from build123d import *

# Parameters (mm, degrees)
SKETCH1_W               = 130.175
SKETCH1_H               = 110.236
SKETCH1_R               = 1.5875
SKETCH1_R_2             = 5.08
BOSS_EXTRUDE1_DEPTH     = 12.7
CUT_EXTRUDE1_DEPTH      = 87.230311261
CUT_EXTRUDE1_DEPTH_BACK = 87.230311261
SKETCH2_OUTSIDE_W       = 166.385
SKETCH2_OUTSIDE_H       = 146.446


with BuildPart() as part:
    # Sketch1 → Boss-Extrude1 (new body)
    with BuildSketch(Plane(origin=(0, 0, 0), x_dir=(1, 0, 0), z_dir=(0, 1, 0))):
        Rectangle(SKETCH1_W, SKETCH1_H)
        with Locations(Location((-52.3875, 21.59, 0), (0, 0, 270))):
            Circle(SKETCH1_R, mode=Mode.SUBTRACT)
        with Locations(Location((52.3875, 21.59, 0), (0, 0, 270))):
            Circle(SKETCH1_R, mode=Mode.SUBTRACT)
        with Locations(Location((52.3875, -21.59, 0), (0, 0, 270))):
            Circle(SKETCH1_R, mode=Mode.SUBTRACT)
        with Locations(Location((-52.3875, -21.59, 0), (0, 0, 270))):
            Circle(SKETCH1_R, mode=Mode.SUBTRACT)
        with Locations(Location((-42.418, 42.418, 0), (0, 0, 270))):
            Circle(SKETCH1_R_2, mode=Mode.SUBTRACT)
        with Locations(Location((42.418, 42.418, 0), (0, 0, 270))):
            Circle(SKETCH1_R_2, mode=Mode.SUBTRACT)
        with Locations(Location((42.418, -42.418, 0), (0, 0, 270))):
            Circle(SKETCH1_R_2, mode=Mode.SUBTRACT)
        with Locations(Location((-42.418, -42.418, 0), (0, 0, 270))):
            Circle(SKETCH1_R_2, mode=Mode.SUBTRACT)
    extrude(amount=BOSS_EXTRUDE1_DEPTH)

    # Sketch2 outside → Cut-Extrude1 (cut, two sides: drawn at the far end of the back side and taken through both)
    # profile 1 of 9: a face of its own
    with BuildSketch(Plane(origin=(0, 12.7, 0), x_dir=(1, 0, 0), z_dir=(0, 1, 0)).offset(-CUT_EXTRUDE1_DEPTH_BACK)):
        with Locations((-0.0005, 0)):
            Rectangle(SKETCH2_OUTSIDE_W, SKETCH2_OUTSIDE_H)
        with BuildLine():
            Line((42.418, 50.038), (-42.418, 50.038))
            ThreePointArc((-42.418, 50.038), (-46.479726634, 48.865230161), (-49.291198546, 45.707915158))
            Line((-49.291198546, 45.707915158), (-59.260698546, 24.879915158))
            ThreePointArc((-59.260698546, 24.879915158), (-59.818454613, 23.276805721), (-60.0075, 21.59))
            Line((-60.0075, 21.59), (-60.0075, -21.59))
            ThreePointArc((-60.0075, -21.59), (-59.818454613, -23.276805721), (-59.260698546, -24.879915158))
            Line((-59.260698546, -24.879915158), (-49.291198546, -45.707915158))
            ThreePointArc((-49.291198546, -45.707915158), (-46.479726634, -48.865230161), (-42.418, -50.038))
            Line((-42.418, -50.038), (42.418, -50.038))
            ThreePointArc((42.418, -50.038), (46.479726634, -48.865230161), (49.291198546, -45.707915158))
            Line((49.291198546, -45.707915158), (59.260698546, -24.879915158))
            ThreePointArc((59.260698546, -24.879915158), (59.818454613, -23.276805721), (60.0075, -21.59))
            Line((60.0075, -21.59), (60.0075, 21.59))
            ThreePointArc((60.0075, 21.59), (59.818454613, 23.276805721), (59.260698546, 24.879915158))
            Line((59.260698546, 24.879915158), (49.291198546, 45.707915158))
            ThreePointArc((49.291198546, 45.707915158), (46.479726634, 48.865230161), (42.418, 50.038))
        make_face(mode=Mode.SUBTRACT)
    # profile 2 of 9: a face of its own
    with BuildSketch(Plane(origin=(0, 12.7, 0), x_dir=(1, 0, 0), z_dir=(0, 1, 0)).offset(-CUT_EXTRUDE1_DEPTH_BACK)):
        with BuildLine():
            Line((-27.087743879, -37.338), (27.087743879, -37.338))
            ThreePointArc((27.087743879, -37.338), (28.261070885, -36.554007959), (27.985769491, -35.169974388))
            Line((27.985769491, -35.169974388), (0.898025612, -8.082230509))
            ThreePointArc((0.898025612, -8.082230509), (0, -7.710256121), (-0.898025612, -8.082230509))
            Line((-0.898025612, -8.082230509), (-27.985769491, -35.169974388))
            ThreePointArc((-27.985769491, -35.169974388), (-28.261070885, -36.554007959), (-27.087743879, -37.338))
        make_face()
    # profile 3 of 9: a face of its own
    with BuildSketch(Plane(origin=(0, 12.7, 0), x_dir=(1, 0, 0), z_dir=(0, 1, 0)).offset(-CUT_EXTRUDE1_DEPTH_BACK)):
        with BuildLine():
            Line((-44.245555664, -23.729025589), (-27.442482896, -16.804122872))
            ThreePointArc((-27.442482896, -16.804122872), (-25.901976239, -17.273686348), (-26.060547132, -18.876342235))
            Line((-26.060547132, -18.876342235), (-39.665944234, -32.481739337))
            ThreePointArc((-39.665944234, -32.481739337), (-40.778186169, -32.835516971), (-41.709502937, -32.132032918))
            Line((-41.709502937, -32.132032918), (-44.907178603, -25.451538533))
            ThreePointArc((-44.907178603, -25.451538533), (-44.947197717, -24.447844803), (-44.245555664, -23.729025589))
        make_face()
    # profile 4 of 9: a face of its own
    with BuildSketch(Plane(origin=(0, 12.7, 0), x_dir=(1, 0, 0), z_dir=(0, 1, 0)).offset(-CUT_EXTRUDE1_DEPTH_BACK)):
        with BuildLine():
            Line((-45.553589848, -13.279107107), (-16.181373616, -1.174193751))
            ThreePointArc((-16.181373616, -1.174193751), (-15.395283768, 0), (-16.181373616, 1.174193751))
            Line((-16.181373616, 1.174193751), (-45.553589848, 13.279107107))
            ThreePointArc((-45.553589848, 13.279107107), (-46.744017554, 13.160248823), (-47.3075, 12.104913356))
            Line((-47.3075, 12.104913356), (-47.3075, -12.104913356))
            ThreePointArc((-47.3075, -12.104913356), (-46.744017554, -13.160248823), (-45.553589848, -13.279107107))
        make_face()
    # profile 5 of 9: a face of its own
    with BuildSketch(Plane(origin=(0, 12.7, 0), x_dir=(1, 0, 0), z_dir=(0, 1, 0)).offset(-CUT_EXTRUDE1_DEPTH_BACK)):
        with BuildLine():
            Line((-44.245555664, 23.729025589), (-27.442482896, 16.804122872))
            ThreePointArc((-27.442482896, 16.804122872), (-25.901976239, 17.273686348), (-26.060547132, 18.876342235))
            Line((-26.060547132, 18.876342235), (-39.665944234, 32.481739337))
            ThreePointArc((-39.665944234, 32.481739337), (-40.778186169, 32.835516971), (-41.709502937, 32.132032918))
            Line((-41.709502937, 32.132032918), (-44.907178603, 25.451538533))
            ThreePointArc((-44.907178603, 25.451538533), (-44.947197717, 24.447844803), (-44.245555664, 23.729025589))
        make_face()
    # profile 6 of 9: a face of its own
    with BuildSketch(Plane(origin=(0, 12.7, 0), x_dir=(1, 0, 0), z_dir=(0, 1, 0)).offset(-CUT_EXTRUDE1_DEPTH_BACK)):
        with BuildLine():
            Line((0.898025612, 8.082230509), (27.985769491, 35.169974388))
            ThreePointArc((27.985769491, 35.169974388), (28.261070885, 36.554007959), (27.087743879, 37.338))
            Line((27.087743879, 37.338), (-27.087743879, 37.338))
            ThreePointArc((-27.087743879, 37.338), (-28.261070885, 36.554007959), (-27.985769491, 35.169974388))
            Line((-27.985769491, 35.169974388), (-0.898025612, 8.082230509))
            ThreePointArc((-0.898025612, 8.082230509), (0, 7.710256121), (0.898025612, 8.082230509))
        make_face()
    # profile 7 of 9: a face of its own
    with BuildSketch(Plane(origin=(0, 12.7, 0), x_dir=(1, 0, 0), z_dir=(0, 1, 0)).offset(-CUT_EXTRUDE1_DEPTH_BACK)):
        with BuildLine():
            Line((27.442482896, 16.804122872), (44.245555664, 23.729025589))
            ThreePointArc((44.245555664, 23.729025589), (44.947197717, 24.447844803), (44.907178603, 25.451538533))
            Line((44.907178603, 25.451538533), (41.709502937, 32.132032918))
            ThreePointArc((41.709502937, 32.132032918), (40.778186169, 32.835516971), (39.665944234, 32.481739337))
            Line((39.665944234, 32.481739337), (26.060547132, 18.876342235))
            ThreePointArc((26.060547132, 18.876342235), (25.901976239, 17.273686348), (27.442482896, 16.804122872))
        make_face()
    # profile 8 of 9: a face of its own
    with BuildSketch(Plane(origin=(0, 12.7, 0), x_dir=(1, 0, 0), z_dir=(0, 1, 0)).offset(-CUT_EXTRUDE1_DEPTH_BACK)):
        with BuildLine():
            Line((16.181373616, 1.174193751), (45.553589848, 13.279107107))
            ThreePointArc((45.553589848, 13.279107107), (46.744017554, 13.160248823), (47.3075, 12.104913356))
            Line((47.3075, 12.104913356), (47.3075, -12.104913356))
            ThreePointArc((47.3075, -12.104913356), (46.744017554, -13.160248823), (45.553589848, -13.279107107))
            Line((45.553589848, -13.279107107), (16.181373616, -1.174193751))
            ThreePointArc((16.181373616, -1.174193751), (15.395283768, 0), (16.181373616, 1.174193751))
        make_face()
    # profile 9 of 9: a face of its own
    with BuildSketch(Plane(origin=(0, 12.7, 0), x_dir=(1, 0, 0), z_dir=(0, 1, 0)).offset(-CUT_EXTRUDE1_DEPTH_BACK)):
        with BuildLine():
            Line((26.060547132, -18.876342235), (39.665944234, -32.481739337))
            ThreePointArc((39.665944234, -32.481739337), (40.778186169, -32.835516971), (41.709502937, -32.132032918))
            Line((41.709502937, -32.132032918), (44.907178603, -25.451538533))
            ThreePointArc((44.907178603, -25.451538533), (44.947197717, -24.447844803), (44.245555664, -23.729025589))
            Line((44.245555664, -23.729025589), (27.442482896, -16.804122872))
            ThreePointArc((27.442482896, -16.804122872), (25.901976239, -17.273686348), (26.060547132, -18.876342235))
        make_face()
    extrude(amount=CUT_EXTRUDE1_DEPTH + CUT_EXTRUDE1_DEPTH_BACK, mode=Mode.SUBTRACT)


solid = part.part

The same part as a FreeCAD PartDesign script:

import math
import FreeCAD as App
import Part
import Sketcher
from FreeCAD import Vector
Q = App.Units.Quantity

doc = App.newDocument("Part")
body = doc.addObject("PartDesign::Body", "Body")

# Sketch on XZ plane
sketch1 = doc.addObject("Sketcher::SketchObject", "Sketch")
body.addObject(sketch1)
sketch1.AttachmentSupport = (doc.XZ_Plane, [""])
sketch1.MapMode = "FlatFace"
sketch1.addGeometry([
    Part.LineSegment(Vector(-65.1, -55.1, 0), Vector(-65.1, 55.1, 0)),  # 0
    Part.LineSegment(Vector(-65.1, 55.1, 0), Vector(65.1, 55.1, 0)),  # 1
    Part.LineSegment(Vector(65.1, 55.1, 0), Vector(65.1, -55.1, 0)),  # 2
    Part.LineSegment(Vector(65.1, -55.1, 0), Vector(-65.1, -55.1, 0)),  # 3
    Part.Circle(Vector(-42.4, 42.4, 0), Vector(0, 0, 1), 5.1),  # 4
    Part.Circle(Vector(-52.4, 21.6, 0), Vector(0, 0, 1), 1.6),  # 5
    Part.Circle(Vector(42.4, 42.4, 0), Vector(0, 0, 1), 5.1),  # 6
    Part.Circle(Vector(52.4, 21.6, 0), Vector(0, 0, 1), 1.6),  # 7
    Part.Circle(Vector(-52.4, -21.6, 0), Vector(0, 0, 1), 1.6),  # 8
    Part.Circle(Vector(-42.4, -42.4, 0), Vector(0, 0, 1), 5.1),  # 9
    Part.Circle(Vector(52.4, -21.6, 0), Vector(0, 0, 1), 1.6),  # 10
    Part.Circle(Vector(42.4, -42.4, 0), Vector(0, 0, 1), 5.1),  # 11
], False)
sketch1.addConstraint([
    Sketcher.Constraint("Coincident", 0, 2, 1, 1),
    Sketcher.Constraint("Coincident", 1, 2, 2, 1),
    Sketcher.Constraint("Coincident", 2, 2, 3, 1),
    Sketcher.Constraint("Coincident", 3, 2, 0, 1),
    Sketcher.Constraint("Vertical", 0),
    Sketcher.Constraint("Horizontal", 1),
    Sketcher.Constraint("Vertical", 2),
    Sketcher.Constraint("Horizontal", 3),
    Sketcher.Constraint("Equal", 4, 6),
    Sketcher.Constraint("Equal", 5, 7),
    Sketcher.Constraint("Equal", 7, 8),
    Sketcher.Constraint("Equal", 6, 9),
    Sketcher.Constraint("Equal", 8, 10),
    Sketcher.Constraint("Equal", 9, 11),
    Sketcher.Constraint("Symmetric", 7, 3, 8, 3, -1, 1),
    Sketcher.Constraint("Symmetric", 6, 3, 9, 3, -1, 1),
    Sketcher.Constraint("Symmetric", 5, 3, 10, 3, -1, 1),
    Sketcher.Constraint("Symmetric", 4, 3, 11, 3, -1, 1),
    Sketcher.Constraint("Symmetric", 0, 2, 2, 2, -1, 1),
    Sketcher.Constraint("Symmetric", 4, 3, 6, 3, -2),
    Sketcher.Constraint("Symmetric", 5, 3, 7, 3, -2),
    Sketcher.Constraint("Diameter", 4, Q("0.4 in")),
    Sketcher.Constraint("Diameter", 5, Q("0.125 in")),
    Sketcher.Constraint("DistanceY", 0, 1, 0, 2, Q("4.34 in")),
    Sketcher.Constraint("DistanceY", 8, 3, 5, 3, Q("1.7 in")),
    Sketcher.Constraint("DistanceY", 4, 3, 0, 2, Q("0.5 in")),
    Sketcher.Constraint("DistanceX", 0, 2, 5, 3, Q("0.5 in")),
    Sketcher.Constraint("DistanceX", 1, 1, 1, 2, Q("5.125 in")),
    Sketcher.Constraint("DistanceX", 4, 3, -1, 1, Q("1.67 in")),
])
pad1 = doc.addObject("PartDesign::Pad", "Pad")
body.addObject(pad1)
pad1.Profile = sketch1
pad1.Length = Q("0.5 in")
pad1.Reversed = True

# Sketch on XZ plane
sketch2 = doc.addObject("Sketcher::SketchObject", "Sketch001")
body.addObject(sketch2)
sketch2.AttachmentSupport = (doc.XZ_Plane, [""])
sketch2.MapMode = "FlatFace"
sketch2.AttachmentOffset = App.Placement(Vector(0, 0, -0.5 * 25.4), App.Rotation())
sketch2.addGeometry([
    Part.LineSegment(Vector(-83.2, -73.2, 0), Vector(-83.2, 73.2, 0)),  # 0
    Part.LineSegment(Vector(-83.2, 73.2, 0), Vector(83.2, 73.2, 0)),  # 1
    Part.LineSegment(Vector(83.2, 73.2, 0), Vector(83.2, -73.2, 0)),  # 2
    Part.LineSegment(Vector(83.2, -73.2, 0), Vector(-83.2, -73.2, 0)),  # 3
    Part.LineSegment(Vector(-42.4, -50, 0), Vector(42.4, -50, 0)),  # 4
    Part.ArcOfCircle(Part.Circle(Vector(42.4, -42.4, 0), Vector(0, 0, 1), 7.6), math.radians(-90), math.radians(-26)),  # 5
    Part.LineSegment(Vector(49.3, -45.7, 0), Vector(59.3, -24.9, 0)),  # 6
    Part.ArcOfCircle(Part.Circle(Vector(52.4, -21.6, 0), Vector(0, 0, 1), 7.6), math.radians(-26), math.radians(0)),  # 7
    Part.LineSegment(Vector(60, -21.6, 0), Vector(60, 21.6, 0)),  # 8
    Part.ArcOfCircle(Part.Circle(Vector(52.4, 21.6, 0), Vector(0, 0, 1), 7.6), math.radians(0), math.radians(26)),  # 9
    Part.LineSegment(Vector(59.3, 24.9, 0), Vector(49.3, 45.7, 0)),  # 10
    Part.ArcOfCircle(Part.Circle(Vector(42.4, 42.4, 0), Vector(0, 0, 1), 7.6), math.radians(26), math.radians(90)),  # 11
    Part.LineSegment(Vector(42.4, 50, 0), Vector(-42.4, 50, 0)),  # 12
    Part.ArcOfCircle(Part.Circle(Vector(-42.4, 42.4, 0), Vector(0, 0, 1), 7.6), math.radians(90), math.radians(154)),  # 13
    Part.LineSegment(Vector(-49.3, 45.7, 0), Vector(-59.3, 24.9, 0)),  # 14
    Part.ArcOfCircle(Part.Circle(Vector(-52.4, 21.6, 0), Vector(0, 0, 1), 7.6), math.radians(154), math.radians(180)),  # 15
    Part.LineSegment(Vector(-60, 21.6, 0), Vector(-60, -21.6, 0)),  # 16
    Part.ArcOfCircle(Part.Circle(Vector(-52.4, -21.6, 0), Vector(0, 0, 1), 7.6), math.radians(180), math.radians(206)),  # 17
    Part.LineSegment(Vector(-59.3, -24.9, 0), Vector(-49.3, -45.7, 0)),  # 18
    Part.ArcOfCircle(Part.Circle(Vector(-42.4, -42.4, 0), Vector(0, 0, 1), 7.6), math.radians(-154), math.radians(-90)),  # 19
    Part.LineSegment(Vector(-27.1, 37.3, 0), Vector(27.1, 37.3, 0)),  # 20
    Part.ArcOfCircle(Part.Circle(Vector(27.1, 36.1, 0), Vector(0, 0, 1), 1.3), math.radians(-45), math.radians(90)),  # 21
    Part.LineSegment(Vector(28, 35.2, 0), Vector(0.9, 8.1, 0)),  # 22
    Part.ArcOfCircle(Part.Circle(Vector(0, 9, 0), Vector(0, 0, 1), 1.3), math.radians(-135), math.radians(-45)),  # 23
    Part.LineSegment(Vector(-0.9, 8.1, 0), Vector(-28, 35.2, 0)),  # 24
    Part.ArcOfCircle(Part.Circle(Vector(-27.1, 36.1, 0), Vector(0, 0, 1), 1.3), math.radians(90), math.radians(225)),  # 25
    Part.LineSegment(Vector(-27.4, 16.8, 0), Vector(-44.2, 23.7, 0)),  # 26
    Part.ArcOfCircle(Part.Circle(Vector(-43.8, 24.9, 0), Vector(0, 0, 1), 1.3), math.radians(154), math.radians(248)),  # 27
    Part.LineSegment(Vector(-44.9, 25.5, 0), Vector(-41.7, 32.1, 0)),  # 28
    Part.ArcOfCircle(Part.Circle(Vector(-40.6, 31.6, 0), Vector(0, 0, 1), 1.3), math.radians(45), math.radians(154)),  # 29
    Part.LineSegment(Vector(-39.7, 32.5, 0), Vector(-26.1, 18.9, 0)),  # 30
    Part.ArcOfCircle(Part.Circle(Vector(-27, 18, 0), Vector(0, 0, 1), 1.3), math.radians(-112), math.radians(45)),  # 31
    Part.LineSegment(Vector(-45.6, 13.3, 0), Vector(-16.2, 1.2, 0)),  # 32
    Part.ArcOfCircle(Part.Circle(Vector(-16.7, 0, 0), Vector(0, 0, 1), 1.3), math.radians(-68), math.radians(68)),  # 33
    Part.LineSegment(Vector(-16.2, -1.2, 0), Vector(-45.6, -13.3, 0)),  # 34
    Part.ArcOfCircle(Part.Circle(Vector(-46, -12.1, 0), Vector(0, 0, 1), 1.3), math.radians(180), math.radians(292)),  # 35
    Part.LineSegment(Vector(-47.3, -12.1, 0), Vector(-47.3, 12.1, 0)),  # 36
    Part.ArcOfCircle(Part.Circle(Vector(-46, 12.1, 0), Vector(0, 0, 1), 1.3), math.radians(68), math.radians(180)),  # 37
    Part.LineSegment(Vector(-44.2, -23.7, 0), Vector(-27.4, -16.8, 0)),  # 38
    Part.ArcOfCircle(Part.Circle(Vector(-27, -18, 0), Vector(0, 0, 1), 1.3), math.radians(-45), math.radians(112)),  # 39
    Part.LineSegment(Vector(-26.1, -18.9, 0), Vector(-39.7, -32.5, 0)),  # 40
    Part.ArcOfCircle(Part.Circle(Vector(-40.6, -31.6, 0), Vector(0, 0, 1), 1.3), math.radians(-154), math.radians(-45)),  # 41
    Part.LineSegment(Vector(-41.7, -32.1, 0), Vector(-44.9, -25.5, 0)),  # 42
    Part.ArcOfCircle(Part.Circle(Vector(-43.8, -24.9, 0), Vector(0, 0, 1), 1.3), math.radians(112), math.radians(206)),  # 43
    Part.LineSegment(Vector(0.9, -8.1, 0), Vector(28, -35.2, 0)),  # 44
    Part.ArcOfCircle(Part.Circle(Vector(27.1, -36.1, 0), Vector(0, 0, 1), 1.3), math.radians(-90), math.radians(45)),  # 45
    Part.LineSegment(Vector(27.1, -37.3, 0), Vector(-27.1, -37.3, 0)),  # 46
    Part.ArcOfCircle(Part.Circle(Vector(-27.1, -36.1, 0), Vector(0, 0, 1), 1.3), math.radians(135), math.radians(270)),  # 47
    Part.LineSegment(Vector(-28, -35.2, 0), Vector(-0.9, -8.1, 0)),  # 48
    Part.ArcOfCircle(Part.Circle(Vector(0, -9, 0), Vector(0, 0, 1), 1.3), math.radians(45), math.radians(135)),  # 49
    Part.LineSegment(Vector(27.4, -16.8, 0), Vector(44.2, -23.7, 0)),  # 50
    Part.ArcOfCircle(Part.Circle(Vector(43.8, -24.9, 0), Vector(0, 0, 1), 1.3), math.radians(-26), math.radians(68)),  # 51
    Part.LineSegment(Vector(44.9, -25.5, 0), Vector(41.7, -32.1, 0)),  # 52
    Part.ArcOfCircle(Part.Circle(Vector(40.6, -31.6, 0), Vector(0, 0, 1), 1.3), math.radians(-135), math.radians(-26)),  # 53
    Part.LineSegment(Vector(39.7, -32.5, 0), Vector(26.1, -18.9, 0)),  # 54
    Part.ArcOfCircle(Part.Circle(Vector(27, -18, 0), Vector(0, 0, 1), 1.3), math.radians(68), math.radians(225)),  # 55
    Part.LineSegment(Vector(45.6, -13.3, 0), Vector(16.2, -1.2, 0)),  # 56
    Part.ArcOfCircle(Part.Circle(Vector(16.7, 0, 0), Vector(0, 0, 1), 1.3), math.radians(112), math.radians(248)),  # 57
    Part.LineSegment(Vector(16.2, 1.2, 0), Vector(45.6, 13.3, 0)),  # 58
    Part.ArcOfCircle(Part.Circle(Vector(46, 12.1, 0), Vector(0, 0, 1), 1.3), math.radians(0), math.radians(112)),  # 59
    Part.LineSegment(Vector(47.3, 12.1, 0), Vector(47.3, -12.1, 0)),  # 60
    Part.ArcOfCircle(Part.Circle(Vector(46, -12.1, 0), Vector(0, 0, 1), 1.3), math.radians(-112), math.radians(0)),  # 61
    Part.LineSegment(Vector(26.1, 18.9, 0), Vector(39.7, 32.5, 0)),  # 62
    Part.ArcOfCircle(Part.Circle(Vector(40.6, 31.6, 0), Vector(0, 0, 1), 1.3), math.radians(26), math.radians(135)),  # 63
    Part.LineSegment(Vector(41.7, 32.1, 0), Vector(44.9, 25.5, 0)),  # 64
    Part.ArcOfCircle(Part.Circle(Vector(43.8, 24.9, 0), Vector(0, 0, 1), 1.3), math.radians(-68), math.radians(26)),  # 65
    Part.LineSegment(Vector(44.2, 23.7, 0), Vector(27.4, 16.8, 0)),  # 66
    Part.ArcOfCircle(Part.Circle(Vector(27, 18, 0), Vector(0, 0, 1), 1.3), math.radians(135), math.radians(292)),  # 67
], False)
sketch2.addConstraint([
    Sketcher.Constraint("Coincident", 0, 2, 1, 1),
    Sketcher.Constraint("Coincident", 1, 2, 2, 1),
    Sketcher.Constraint("Coincident", 2, 2, 3, 1),
    Sketcher.Constraint("Coincident", 3, 2, 0, 1),
    Sketcher.Constraint("Tangent", 4, 2, 5, 1),
    Sketcher.Constraint("Tangent", 5, 2, 6, 1),
    Sketcher.Constraint("Tangent", 6, 2, 7, 1),
    Sketcher.Constraint("Tangent", 7, 2, 8, 1),
    Sketcher.Constraint("Tangent", 8, 2, 9, 1),
    Sketcher.Constraint("Tangent", 9, 2, 10, 1),
    Sketcher.Constraint("Tangent", 10, 2, 11, 1),
    Sketcher.Constraint("Tangent", 11, 2, 12, 1),
    Sketcher.Constraint("Tangent", 12, 2, 13, 1),
    Sketcher.Constraint("Tangent", 13, 2, 14, 1),
    Sketcher.Constraint("Tangent", 14, 2, 15, 1),
    Sketcher.Constraint("Tangent", 15, 2, 16, 1),
    Sketcher.Constraint("Tangent", 16, 2, 17, 1),
    Sketcher.Constraint("Tangent", 17, 2, 18, 1),
    Sketcher.Constraint("Tangent", 18, 2, 19, 1),
    Sketcher.Constraint("Tangent", 19, 2, 4, 1),
    Sketcher.Constraint("Tangent", 20, 2, 21, 2),
    Sketcher.Constraint("Tangent", 21, 1, 22, 1),
    Sketcher.Constraint("Tangent", 22, 2, 23, 2),
    Sketcher.Constraint("Tangent", 23, 1, 24, 1),
    Sketcher.Constraint("Tangent", 24, 2, 25, 2),
    Sketcher.Constraint("Tangent", 25, 1, 20, 1),
    Sketcher.Constraint("Tangent", 26, 2, 27, 2),
    Sketcher.Constraint("Tangent", 27, 1, 28, 1),
    Sketcher.Constraint("Tangent", 28, 2, 29, 2),
    Sketcher.Constraint("Tangent", 29, 1, 30, 1),
    Sketcher.Constraint("Tangent", 30, 2, 31, 2),
    Sketcher.Constraint("Tangent", 31, 1, 26, 1),
    Sketcher.Constraint("Tangent", 32, 2, 33, 2),
    Sketcher.Constraint("Tangent", 33, 1, 34, 1),
    Sketcher.Constraint("Tangent", 34, 2, 35, 2),
    Sketcher.Constraint("Tangent", 35, 1, 36, 1),
    Sketcher.Constraint("Tangent", 36, 2, 37, 2),
    Sketcher.Constraint("Tangent", 37, 1, 32, 1),
    Sketcher.Constraint("Tangent", 38, 2, 39, 2),
    Sketcher.Constraint("Tangent", 39, 1, 40, 1),
    Sketcher.Constraint("Tangent", 40, 2, 41, 2),
    Sketcher.Constraint("Tangent", 41, 1, 42, 1),
    Sketcher.Constraint("Tangent", 42, 2, 43, 2),
    Sketcher.Constraint("Tangent", 43, 1, 38, 1),
    Sketcher.Constraint("Tangent", 44, 2, 45, 2),
    Sketcher.Constraint("Tangent", 45, 1, 46, 1),
    Sketcher.Constraint("Tangent", 46, 2, 47, 2),
    Sketcher.Constraint("Tangent", 47, 1, 48, 1),
    Sketcher.Constraint("Tangent", 48, 2, 49, 2),
    Sketcher.Constraint("Tangent", 49, 1, 44, 1),
    Sketcher.Constraint("Tangent", 50, 2, 51, 2),
    Sketcher.Constraint("Tangent", 51, 1, 52, 1),
    Sketcher.Constraint("Tangent", 52, 2, 53, 2),
    Sketcher.Constraint("Tangent", 53, 1, 54, 1),
    Sketcher.Constraint("Tangent", 54, 2, 55, 2),
    Sketcher.Constraint("Tangent", 55, 1, 50, 1),
    Sketcher.Constraint("Tangent", 56, 2, 57, 2),
    Sketcher.Constraint("Tangent", 57, 1, 58, 1),
    Sketcher.Constraint("Tangent", 58, 2, 59, 2),
    Sketcher.Constraint("Tangent", 59, 1, 60, 1),
    Sketcher.Constraint("Tangent", 60, 2, 61, 2),
    Sketcher.Constraint("Tangent", 61, 1, 56, 1),
    Sketcher.Constraint("Tangent", 62, 2, 63, 2),
    Sketcher.Constraint("Tangent", 63, 1, 64, 1),
    Sketcher.Constraint("Tangent", 64, 2, 65, 2),
    Sketcher.Constraint("Tangent", 65, 1, 66, 1),
    Sketcher.Constraint("Tangent", 66, 2, 67, 2),
    Sketcher.Constraint("Tangent", 67, 1, 62, 1),
    Sketcher.Constraint("Vertical", 0),
    Sketcher.Constraint("Horizontal", 1),
    Sketcher.Constraint("Vertical", 2),
    Sketcher.Constraint("Horizontal", 3),
    Sketcher.Constraint("Horizontal", 4),
    Sketcher.Constraint("Vertical", 8),
    Sketcher.Constraint("Horizontal", 12),
    Sketcher.Constraint("Vertical", 16),
    Sketcher.Constraint("Horizontal", 20),
    Sketcher.Constraint("Vertical", 36),
    Sketcher.Constraint("Horizontal", 46),
    Sketcher.Constraint("Vertical", 60),
    Sketcher.Constraint("Equal", 5, 7),
    Sketcher.Constraint("Equal", 7, 9),
    Sketcher.Constraint("Equal", 9, 11),
    Sketcher.Constraint("Equal", 11, 13),
    Sketcher.Constraint("Equal", 13, 15),
    Sketcher.Constraint("Equal", 15, 17),
    Sketcher.Constraint("Equal", 17, 19),
    Sketcher.Constraint("Equal", 21, 23),
    Sketcher.Constraint("Equal", 23, 25),
    Sketcher.Constraint("Equal", 25, 27),
    Sketcher.Constraint("Equal", 27, 29),
    Sketcher.Constraint("Equal", 29, 31),
    Sketcher.Constraint("Equal", 31, 33),
    Sketcher.Constraint("Equal", 33, 35),
    Sketcher.Constraint("Equal", 35, 37),
    Sketcher.Constraint("Equal", 37, 39),
    Sketcher.Constraint("Equal", 39, 41),
    Sketcher.Constraint("Equal", 41, 43),
    Sketcher.Constraint("Equal", 43, 45),
    Sketcher.Constraint("Equal", 45, 47),
    Sketcher.Constraint("Equal", 47, 49),
    Sketcher.Constraint("Equal", 49, 51),
    Sketcher.Constraint("Equal", 51, 53),
    Sketcher.Constraint("Equal", 53, 55),
    Sketcher.Constraint("Equal", 55, 57),
    Sketcher.Constraint("Equal", 57, 59),
    Sketcher.Constraint("Equal", 59, 61),
    Sketcher.Constraint("Equal", 61, 63),
    Sketcher.Constraint("Equal", 63, 65),
    Sketcher.Constraint("Equal", 65, 67),
    Sketcher.Constraint("Symmetric", 5, 3, 13, 3, -1, 1),
    Sketcher.Constraint("Symmetric", 7, 3, 15, 3, -1, 1),
    Sketcher.Constraint("Symmetric", 25, 3, 45, 3, -1, 1),
    Sketcher.Constraint("Symmetric", 23, 3, 49, 3, -1, 1),
    Sketcher.Constraint("Symmetric", 27, 3, 51, 3, -1, 1),
    Sketcher.Constraint("Symmetric", 29, 3, 53, 3, -1, 1),
    Sketcher.Constraint("Symmetric", 31, 3, 55, 3, -1, 1),
    Sketcher.Constraint("Symmetric", 33, 3, 57, 3, -1, 1),
    Sketcher.Constraint("Symmetric", 35, 3, 59, 3, -1, 1),
    Sketcher.Constraint("Symmetric", 41, 3, 63, 3, -1, 1),
    Sketcher.Constraint("Symmetric", 43, 3, 65, 3, -1, 1),
    Sketcher.Constraint("Symmetric", 39, 3, 67, 3, -1, 1),
    Sketcher.Constraint("Symmetric", 9, 2, 17, 2, -1, 1),
    Sketcher.Constraint("Symmetric", 43, 3, 51, 3, -2),
    Sketcher.Constraint("Symmetric", 41, 3, 53, 3, -2),
    Sketcher.Constraint("Symmetric", 39, 3, 55, 3, -2),
    Sketcher.Constraint("Symmetric", 10, 2, 13, 2, -2),
    Sketcher.Constraint("Symmetric", 22, 2, 23, 1, -2),
    Sketcher.Constraint("Symmetric", 33, 1, 56, 2, -2),
    Sketcher.Constraint("Perpendicular", 22, 24),
    Sketcher.Constraint("Parallel", 14, 28),
    Sketcher.Constraint("Parallel", 24, 30),
    Sketcher.Constraint("Parallel", 26, 32),
    Sketcher.Constraint("Parallel", 34, 38),
    Sketcher.Constraint("Perpendicular", 44, 48),
    Sketcher.Constraint("Radius", 5, Q("0.3 in")),
    Sketcher.Constraint("Radius", 21, Q("0.05 in")),
    Sketcher.Constraint("DistanceY", 8, 1, 8, 2, Q("1.7 in")),
    Sketcher.Constraint("DistanceX", 4, 1, 4, 2, Q("3.34 in")),
    Sketcher.Constraint("DistanceY", 5, 3, -1, 1, Q("1.67 in")),
    Sketcher.Constraint("DistanceY", -1, 1, 21, 3, Q("1.42 in")),
    Sketcher.Constraint("DistanceX", -1, 1, 7, 3, Q("2.0625 in")),
    Sketcher.Constraint("DistanceX", 35, 3, -1, 1, Q("1.8125 in")),
    Sketcher.Constraint("DistanceX", 1, 1, 1, 2, 166.385),
    Sketcher.Constraint("DistanceY", 0, 1, 0, 2, 146.446),
    Sketcher.Constraint("DistanceX", 0, 2, -1, 1, 83.193),
    Sketcher.Constraint("DistanceY", -1, 1, 0, 2, 73.223),
    Sketcher.Constraint("Distance", 26, 18.17409),
    Sketcher.Constraint("Distance", 32, 31.76879),
    Sketcher.Constraint("DistanceX", 20, 1, 20, 2, 54.175488),
    Sketcher.Constraint("DistanceY", 36, 1, 36, 2, 24.209827),
    Sketcher.Constraint("DistanceY", -1, 1, 27, 3, 24.903219),
    Sketcher.Constraint("DistanceX", 29, 3, -1, 1, 40.56397),
])
pocket1 = doc.addObject("PartDesign::Pocket", "Pocket")
body.addObject(pocket1)
pocket1.Profile = sketch2
pocket1.Type = "ThroughAll"
pocket1.Midplane = True

doc.recompute()
